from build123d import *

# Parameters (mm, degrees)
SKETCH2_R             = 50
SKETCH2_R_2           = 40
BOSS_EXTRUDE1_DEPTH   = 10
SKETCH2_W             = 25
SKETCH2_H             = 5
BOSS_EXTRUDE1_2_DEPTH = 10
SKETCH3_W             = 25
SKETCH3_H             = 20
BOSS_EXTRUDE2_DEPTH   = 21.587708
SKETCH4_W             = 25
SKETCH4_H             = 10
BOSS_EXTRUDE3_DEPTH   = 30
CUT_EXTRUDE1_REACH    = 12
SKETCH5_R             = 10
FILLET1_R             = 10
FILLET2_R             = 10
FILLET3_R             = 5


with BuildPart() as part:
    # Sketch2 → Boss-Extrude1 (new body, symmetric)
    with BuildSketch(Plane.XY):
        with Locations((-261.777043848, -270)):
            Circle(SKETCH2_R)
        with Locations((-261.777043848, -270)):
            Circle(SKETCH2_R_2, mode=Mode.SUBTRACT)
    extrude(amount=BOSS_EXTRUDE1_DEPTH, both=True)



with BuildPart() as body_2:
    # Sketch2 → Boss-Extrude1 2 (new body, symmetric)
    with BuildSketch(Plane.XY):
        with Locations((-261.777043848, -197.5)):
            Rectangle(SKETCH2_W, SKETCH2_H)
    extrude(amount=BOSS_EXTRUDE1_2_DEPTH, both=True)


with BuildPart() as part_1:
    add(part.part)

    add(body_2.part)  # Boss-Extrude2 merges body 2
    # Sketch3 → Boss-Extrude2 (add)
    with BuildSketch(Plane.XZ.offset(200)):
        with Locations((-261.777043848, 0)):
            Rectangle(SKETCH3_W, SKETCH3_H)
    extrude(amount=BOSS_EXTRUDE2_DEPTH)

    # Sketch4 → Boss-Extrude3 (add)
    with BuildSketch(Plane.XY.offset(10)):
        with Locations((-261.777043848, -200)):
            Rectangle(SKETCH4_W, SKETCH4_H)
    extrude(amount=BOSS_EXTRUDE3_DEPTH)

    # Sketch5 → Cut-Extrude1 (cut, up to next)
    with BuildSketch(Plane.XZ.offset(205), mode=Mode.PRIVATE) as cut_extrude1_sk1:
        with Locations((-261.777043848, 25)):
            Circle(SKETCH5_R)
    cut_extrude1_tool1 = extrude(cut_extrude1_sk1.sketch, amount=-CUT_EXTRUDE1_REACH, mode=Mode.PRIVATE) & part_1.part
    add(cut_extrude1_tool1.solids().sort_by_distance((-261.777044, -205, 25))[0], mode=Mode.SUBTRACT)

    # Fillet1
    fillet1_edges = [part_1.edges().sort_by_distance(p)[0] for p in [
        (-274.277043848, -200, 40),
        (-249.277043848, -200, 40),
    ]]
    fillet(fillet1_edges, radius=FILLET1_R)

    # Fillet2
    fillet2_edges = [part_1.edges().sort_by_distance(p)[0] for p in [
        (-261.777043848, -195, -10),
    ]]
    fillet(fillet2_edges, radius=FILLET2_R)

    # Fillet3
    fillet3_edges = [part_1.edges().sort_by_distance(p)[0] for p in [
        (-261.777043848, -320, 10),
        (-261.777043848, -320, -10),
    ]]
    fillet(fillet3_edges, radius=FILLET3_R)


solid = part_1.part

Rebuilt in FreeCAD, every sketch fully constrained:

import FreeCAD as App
import Part
import Sketcher


def edges_at(feature, points):
    """Names of the edges that pass closest to the given points."""
    edges = feature.Shape.Edges
    near = lambda p: min(range(len(edges)), key=lambda i: edges[i].distToShape(Part.Vertex(*p))[0])
    return sorted({f"Edge{near(p) + 1}" for p in points})


def add_polygon(sketch, points):
    """Adds a closed chain of lines whose ends are joined by coincident constraints."""
    first, n = sketch.GeometryCount, len(points)
    for a, b in zip(points, points[1:] + points[:1]):
        sketch.addGeometry(Part.LineSegment(App.Vector(*a, 0), App.Vector(*b, 0)), False)
    for i in range(n):
        sketch.addConstraint(Sketcher.Constraint("Coincident", first + i, 2, first + (i + 1) % n, 1))

doc = App.newDocument("Part")
body = doc.addObject("PartDesign::Body", "Body")

sketch1 = doc.addObject("Sketcher::SketchObject", "Sketch")
body.addObject(sketch1)
sketch1.AttachmentSupport = (doc.XY_Plane, [""])
sketch1.MapMode = "FlatFace"
sketch1.addGeometry(Part.Circle(App.Vector(-262, -270, 0), App.Vector(0, 0, 1), 50), False)
sketch1.addGeometry(Part.Circle(App.Vector(-262, -270, 0), App.Vector(0, 0, 1), 40), False)
sketch1.addConstraint(Sketcher.Constraint("Coincident", 1, 3, 0, 3))
sketch1.addConstraint(Sketcher.Constraint("Diameter", 0, 100.0))
sketch1.addConstraint(Sketcher.Constraint("Diameter", 1, 80.0))
sketch1.addConstraint(Sketcher.Constraint("DistanceY", 0, 3, -1, 1, 270.0))
sketch1.addConstraint(Sketcher.Constraint("DistanceX", 0, 3, -1, 1, 261.777044))
pad1 = doc.addObject("PartDesign::Pad", "Pad")
body.addObject(pad1)
pad1.Profile = sketch1
pad1.Length = 20
pad1.Midplane = True
body2 = doc.addObject("PartDesign::Body", "Body001")

sketch2 = doc.addObject("Sketcher::SketchObject", "Sketch001")
body2.addObject(sketch2)
sketch2.AttachmentSupport = (doc.getObject("XY_Plane001"), [""])
sketch2.MapMode = "FlatFace"
add_polygon(sketch2, [(-274, -195), (-274, -200), (-249, -200), (-249, -195)])
sketch2.addConstraint(Sketcher.Constraint("Vertical", 0))
sketch2.addConstraint(Sketcher.Constraint("Horizontal", 1))
sketch2.addConstraint(Sketcher.Constraint("Vertical", 2))
sketch2.addConstraint(Sketcher.Constraint("Horizontal", 3))
sketch2.addConstraint(Sketcher.Constraint("DistanceX", 1, 1, 1, 2, 25.0))
sketch2.addConstraint(Sketcher.Constraint("DistanceY", 0, 2, 0, 1, 5.0))
sketch2.addConstraint(Sketcher.Constraint("DistanceY", 0, 2, -1, 1, 200.0))
sketch2.addConstraint(Sketcher.Constraint("DistanceX", 0, 2, -1, 1, 274.277044))
pad2 = doc.addObject("PartDesign::Pad", "Pad001")
body2.addObject(pad2)
pad2.Profile = sketch2
pad2.Length = 20
pad2.Midplane = True
body.AllowCompound = True
doc.recompute()

boolean = doc.addObject("PartDesign::Boolean", "Boolean")
body.addObject(boolean)
boolean.Type = "Fuse"
boolean.addObjects([body2])

sketch3 = doc.addObject("Sketcher::SketchObject", "Sketch002")
body.addObject(sketch3)
sketch3.AttachmentSupport = (doc.XZ_Plane, [""])
sketch3.MapMode = "FlatFace"
sketch3.AttachmentOffset = App.Placement(App.Vector(0, 0, 200), App.Rotation())
add_polygon(sketch3, [(-274, 10), (-274, -10), (-249, -10), (-249, 10)])
sketch3.addConstraint(Sketcher.Constraint("Vertical", 0))
sketch3.addConstraint(Sketcher.Constraint("Horizontal", 1))
sketch3.addConstraint(Sketcher.Constraint("Vertical", 2))
sketch3.addConstraint(Sketcher.Constraint("Horizontal", 3))
sketch3.addConstraint(Sketcher.Constraint("DistanceX", 1, 1, 1, 2, 25.0))
sketch3.addConstraint(Sketcher.Constraint("DistanceY", 0, 2, 0, 1, 20.0))
sketch3.addConstraint(Sketcher.Constraint("DistanceY", 0, 2, -1, 1, 10.0))
sketch3.addConstraint(Sketcher.Constraint("DistanceX", 0, 2, -1, 1, 274.277044))
pad3 = doc.addObject("PartDesign::Pad", "Pad002")
body.addObject(pad3)
pad3.Profile = sketch3
pad3.Length = 21.587708

sketch4 = doc.addObject("Sketcher::SketchObject", "Sketch003")
body.addObject(sketch4)
sketch4.AttachmentSupport = (doc.XY_Plane, [""])
sketch4.MapMode = "FlatFace"
sketch4.AttachmentOffset = App.Placement(App.Vector(0, 0, 10), App.Rotation())
add_polygon(sketch4, [(-274, -195), (-274, -205), (-249, -205), (-249, -195)])
sketch4.addConstraint(Sketcher.Constraint("Vertical", 0))
sketch4.addConstraint(Sketcher.Constraint("Horizontal", 1))
sketch4.addConstraint(Sketcher.Constraint("Vertical", 2))
sketch4.addConstraint(Sketcher.Constraint("Horizontal", 3))
sketch4.addConstraint(Sketcher.Constraint("DistanceX", 1, 1, 1, 2, 25.0))
sketch4.addConstraint(Sketcher.Constraint("DistanceY", 0, 2, 0, 1, 10.0))
sketch4.addConstraint(Sketcher.Constraint("DistanceY", 0, 2, -1, 1, 205.0))
sketch4.addConstraint(Sketcher.Constraint("DistanceX", 0, 2, -1, 1, 274.277044))
pad4 = doc.addObject("PartDesign::Pad", "Pad003")
body.addObject(pad4)
pad4.Profile = sketch4
pad4.Length = 30

sketch5 = doc.addObject("Sketcher::SketchObject", "Sketch004")
body.addObject(sketch5)
sketch5.AttachmentSupport = (doc.XZ_Plane, [""])
sketch5.MapMode = "FlatFace"
sketch5.AttachmentOffset = App.Placement(App.Vector(0, 0, 205), App.Rotation())
sketch5.addGeometry(Part.Circle(App.Vector(-262, 25, 0), App.Vector(0, 0, 1), 10), False)
sketch5.addConstraint(Sketcher.Constraint("Diameter", 0, 20.0))
sketch5.addConstraint(Sketcher.Constraint("DistanceY", -1, 1, 0, 3, 25.0))
sketch5.addConstraint(Sketcher.Constraint("DistanceX", 0, 3, -1, 1, 261.777044))
pocket1 = doc.addObject("PartDesign::Pocket", "Pocket")
body.addObject(pocket1)
pocket1.Profile = sketch5
pocket1.Type = "UpToFirst"
doc.recompute()

fillet = doc.addObject("PartDesign::Fillet", "Fillet")
body.addObject(fillet)
fillet.Base = (pocket1, edges_at(pocket1, [(-274.277, -200, 40), (-249.277, -200, 40)]))
fillet.Radius = 10
doc.recompute()

fillet2 = doc.addObject("PartDesign::Fillet", "Fillet001")
body.addObject(fillet2)
fillet2.Base = (fillet, edges_at(fillet, [(-261.777, -195, -10)]))
fillet2.Radius = 10
doc.recompute()

fillet3 = doc.addObject("PartDesign::Fillet", "Fillet002")
body.addObject(fillet3)
fillet3.Base = (fillet2, edges_at(fillet2, [(-261.777, -320, 10), (-261.777, -320, -10)]))
fillet3.Radius = 5

doc.recompute()
